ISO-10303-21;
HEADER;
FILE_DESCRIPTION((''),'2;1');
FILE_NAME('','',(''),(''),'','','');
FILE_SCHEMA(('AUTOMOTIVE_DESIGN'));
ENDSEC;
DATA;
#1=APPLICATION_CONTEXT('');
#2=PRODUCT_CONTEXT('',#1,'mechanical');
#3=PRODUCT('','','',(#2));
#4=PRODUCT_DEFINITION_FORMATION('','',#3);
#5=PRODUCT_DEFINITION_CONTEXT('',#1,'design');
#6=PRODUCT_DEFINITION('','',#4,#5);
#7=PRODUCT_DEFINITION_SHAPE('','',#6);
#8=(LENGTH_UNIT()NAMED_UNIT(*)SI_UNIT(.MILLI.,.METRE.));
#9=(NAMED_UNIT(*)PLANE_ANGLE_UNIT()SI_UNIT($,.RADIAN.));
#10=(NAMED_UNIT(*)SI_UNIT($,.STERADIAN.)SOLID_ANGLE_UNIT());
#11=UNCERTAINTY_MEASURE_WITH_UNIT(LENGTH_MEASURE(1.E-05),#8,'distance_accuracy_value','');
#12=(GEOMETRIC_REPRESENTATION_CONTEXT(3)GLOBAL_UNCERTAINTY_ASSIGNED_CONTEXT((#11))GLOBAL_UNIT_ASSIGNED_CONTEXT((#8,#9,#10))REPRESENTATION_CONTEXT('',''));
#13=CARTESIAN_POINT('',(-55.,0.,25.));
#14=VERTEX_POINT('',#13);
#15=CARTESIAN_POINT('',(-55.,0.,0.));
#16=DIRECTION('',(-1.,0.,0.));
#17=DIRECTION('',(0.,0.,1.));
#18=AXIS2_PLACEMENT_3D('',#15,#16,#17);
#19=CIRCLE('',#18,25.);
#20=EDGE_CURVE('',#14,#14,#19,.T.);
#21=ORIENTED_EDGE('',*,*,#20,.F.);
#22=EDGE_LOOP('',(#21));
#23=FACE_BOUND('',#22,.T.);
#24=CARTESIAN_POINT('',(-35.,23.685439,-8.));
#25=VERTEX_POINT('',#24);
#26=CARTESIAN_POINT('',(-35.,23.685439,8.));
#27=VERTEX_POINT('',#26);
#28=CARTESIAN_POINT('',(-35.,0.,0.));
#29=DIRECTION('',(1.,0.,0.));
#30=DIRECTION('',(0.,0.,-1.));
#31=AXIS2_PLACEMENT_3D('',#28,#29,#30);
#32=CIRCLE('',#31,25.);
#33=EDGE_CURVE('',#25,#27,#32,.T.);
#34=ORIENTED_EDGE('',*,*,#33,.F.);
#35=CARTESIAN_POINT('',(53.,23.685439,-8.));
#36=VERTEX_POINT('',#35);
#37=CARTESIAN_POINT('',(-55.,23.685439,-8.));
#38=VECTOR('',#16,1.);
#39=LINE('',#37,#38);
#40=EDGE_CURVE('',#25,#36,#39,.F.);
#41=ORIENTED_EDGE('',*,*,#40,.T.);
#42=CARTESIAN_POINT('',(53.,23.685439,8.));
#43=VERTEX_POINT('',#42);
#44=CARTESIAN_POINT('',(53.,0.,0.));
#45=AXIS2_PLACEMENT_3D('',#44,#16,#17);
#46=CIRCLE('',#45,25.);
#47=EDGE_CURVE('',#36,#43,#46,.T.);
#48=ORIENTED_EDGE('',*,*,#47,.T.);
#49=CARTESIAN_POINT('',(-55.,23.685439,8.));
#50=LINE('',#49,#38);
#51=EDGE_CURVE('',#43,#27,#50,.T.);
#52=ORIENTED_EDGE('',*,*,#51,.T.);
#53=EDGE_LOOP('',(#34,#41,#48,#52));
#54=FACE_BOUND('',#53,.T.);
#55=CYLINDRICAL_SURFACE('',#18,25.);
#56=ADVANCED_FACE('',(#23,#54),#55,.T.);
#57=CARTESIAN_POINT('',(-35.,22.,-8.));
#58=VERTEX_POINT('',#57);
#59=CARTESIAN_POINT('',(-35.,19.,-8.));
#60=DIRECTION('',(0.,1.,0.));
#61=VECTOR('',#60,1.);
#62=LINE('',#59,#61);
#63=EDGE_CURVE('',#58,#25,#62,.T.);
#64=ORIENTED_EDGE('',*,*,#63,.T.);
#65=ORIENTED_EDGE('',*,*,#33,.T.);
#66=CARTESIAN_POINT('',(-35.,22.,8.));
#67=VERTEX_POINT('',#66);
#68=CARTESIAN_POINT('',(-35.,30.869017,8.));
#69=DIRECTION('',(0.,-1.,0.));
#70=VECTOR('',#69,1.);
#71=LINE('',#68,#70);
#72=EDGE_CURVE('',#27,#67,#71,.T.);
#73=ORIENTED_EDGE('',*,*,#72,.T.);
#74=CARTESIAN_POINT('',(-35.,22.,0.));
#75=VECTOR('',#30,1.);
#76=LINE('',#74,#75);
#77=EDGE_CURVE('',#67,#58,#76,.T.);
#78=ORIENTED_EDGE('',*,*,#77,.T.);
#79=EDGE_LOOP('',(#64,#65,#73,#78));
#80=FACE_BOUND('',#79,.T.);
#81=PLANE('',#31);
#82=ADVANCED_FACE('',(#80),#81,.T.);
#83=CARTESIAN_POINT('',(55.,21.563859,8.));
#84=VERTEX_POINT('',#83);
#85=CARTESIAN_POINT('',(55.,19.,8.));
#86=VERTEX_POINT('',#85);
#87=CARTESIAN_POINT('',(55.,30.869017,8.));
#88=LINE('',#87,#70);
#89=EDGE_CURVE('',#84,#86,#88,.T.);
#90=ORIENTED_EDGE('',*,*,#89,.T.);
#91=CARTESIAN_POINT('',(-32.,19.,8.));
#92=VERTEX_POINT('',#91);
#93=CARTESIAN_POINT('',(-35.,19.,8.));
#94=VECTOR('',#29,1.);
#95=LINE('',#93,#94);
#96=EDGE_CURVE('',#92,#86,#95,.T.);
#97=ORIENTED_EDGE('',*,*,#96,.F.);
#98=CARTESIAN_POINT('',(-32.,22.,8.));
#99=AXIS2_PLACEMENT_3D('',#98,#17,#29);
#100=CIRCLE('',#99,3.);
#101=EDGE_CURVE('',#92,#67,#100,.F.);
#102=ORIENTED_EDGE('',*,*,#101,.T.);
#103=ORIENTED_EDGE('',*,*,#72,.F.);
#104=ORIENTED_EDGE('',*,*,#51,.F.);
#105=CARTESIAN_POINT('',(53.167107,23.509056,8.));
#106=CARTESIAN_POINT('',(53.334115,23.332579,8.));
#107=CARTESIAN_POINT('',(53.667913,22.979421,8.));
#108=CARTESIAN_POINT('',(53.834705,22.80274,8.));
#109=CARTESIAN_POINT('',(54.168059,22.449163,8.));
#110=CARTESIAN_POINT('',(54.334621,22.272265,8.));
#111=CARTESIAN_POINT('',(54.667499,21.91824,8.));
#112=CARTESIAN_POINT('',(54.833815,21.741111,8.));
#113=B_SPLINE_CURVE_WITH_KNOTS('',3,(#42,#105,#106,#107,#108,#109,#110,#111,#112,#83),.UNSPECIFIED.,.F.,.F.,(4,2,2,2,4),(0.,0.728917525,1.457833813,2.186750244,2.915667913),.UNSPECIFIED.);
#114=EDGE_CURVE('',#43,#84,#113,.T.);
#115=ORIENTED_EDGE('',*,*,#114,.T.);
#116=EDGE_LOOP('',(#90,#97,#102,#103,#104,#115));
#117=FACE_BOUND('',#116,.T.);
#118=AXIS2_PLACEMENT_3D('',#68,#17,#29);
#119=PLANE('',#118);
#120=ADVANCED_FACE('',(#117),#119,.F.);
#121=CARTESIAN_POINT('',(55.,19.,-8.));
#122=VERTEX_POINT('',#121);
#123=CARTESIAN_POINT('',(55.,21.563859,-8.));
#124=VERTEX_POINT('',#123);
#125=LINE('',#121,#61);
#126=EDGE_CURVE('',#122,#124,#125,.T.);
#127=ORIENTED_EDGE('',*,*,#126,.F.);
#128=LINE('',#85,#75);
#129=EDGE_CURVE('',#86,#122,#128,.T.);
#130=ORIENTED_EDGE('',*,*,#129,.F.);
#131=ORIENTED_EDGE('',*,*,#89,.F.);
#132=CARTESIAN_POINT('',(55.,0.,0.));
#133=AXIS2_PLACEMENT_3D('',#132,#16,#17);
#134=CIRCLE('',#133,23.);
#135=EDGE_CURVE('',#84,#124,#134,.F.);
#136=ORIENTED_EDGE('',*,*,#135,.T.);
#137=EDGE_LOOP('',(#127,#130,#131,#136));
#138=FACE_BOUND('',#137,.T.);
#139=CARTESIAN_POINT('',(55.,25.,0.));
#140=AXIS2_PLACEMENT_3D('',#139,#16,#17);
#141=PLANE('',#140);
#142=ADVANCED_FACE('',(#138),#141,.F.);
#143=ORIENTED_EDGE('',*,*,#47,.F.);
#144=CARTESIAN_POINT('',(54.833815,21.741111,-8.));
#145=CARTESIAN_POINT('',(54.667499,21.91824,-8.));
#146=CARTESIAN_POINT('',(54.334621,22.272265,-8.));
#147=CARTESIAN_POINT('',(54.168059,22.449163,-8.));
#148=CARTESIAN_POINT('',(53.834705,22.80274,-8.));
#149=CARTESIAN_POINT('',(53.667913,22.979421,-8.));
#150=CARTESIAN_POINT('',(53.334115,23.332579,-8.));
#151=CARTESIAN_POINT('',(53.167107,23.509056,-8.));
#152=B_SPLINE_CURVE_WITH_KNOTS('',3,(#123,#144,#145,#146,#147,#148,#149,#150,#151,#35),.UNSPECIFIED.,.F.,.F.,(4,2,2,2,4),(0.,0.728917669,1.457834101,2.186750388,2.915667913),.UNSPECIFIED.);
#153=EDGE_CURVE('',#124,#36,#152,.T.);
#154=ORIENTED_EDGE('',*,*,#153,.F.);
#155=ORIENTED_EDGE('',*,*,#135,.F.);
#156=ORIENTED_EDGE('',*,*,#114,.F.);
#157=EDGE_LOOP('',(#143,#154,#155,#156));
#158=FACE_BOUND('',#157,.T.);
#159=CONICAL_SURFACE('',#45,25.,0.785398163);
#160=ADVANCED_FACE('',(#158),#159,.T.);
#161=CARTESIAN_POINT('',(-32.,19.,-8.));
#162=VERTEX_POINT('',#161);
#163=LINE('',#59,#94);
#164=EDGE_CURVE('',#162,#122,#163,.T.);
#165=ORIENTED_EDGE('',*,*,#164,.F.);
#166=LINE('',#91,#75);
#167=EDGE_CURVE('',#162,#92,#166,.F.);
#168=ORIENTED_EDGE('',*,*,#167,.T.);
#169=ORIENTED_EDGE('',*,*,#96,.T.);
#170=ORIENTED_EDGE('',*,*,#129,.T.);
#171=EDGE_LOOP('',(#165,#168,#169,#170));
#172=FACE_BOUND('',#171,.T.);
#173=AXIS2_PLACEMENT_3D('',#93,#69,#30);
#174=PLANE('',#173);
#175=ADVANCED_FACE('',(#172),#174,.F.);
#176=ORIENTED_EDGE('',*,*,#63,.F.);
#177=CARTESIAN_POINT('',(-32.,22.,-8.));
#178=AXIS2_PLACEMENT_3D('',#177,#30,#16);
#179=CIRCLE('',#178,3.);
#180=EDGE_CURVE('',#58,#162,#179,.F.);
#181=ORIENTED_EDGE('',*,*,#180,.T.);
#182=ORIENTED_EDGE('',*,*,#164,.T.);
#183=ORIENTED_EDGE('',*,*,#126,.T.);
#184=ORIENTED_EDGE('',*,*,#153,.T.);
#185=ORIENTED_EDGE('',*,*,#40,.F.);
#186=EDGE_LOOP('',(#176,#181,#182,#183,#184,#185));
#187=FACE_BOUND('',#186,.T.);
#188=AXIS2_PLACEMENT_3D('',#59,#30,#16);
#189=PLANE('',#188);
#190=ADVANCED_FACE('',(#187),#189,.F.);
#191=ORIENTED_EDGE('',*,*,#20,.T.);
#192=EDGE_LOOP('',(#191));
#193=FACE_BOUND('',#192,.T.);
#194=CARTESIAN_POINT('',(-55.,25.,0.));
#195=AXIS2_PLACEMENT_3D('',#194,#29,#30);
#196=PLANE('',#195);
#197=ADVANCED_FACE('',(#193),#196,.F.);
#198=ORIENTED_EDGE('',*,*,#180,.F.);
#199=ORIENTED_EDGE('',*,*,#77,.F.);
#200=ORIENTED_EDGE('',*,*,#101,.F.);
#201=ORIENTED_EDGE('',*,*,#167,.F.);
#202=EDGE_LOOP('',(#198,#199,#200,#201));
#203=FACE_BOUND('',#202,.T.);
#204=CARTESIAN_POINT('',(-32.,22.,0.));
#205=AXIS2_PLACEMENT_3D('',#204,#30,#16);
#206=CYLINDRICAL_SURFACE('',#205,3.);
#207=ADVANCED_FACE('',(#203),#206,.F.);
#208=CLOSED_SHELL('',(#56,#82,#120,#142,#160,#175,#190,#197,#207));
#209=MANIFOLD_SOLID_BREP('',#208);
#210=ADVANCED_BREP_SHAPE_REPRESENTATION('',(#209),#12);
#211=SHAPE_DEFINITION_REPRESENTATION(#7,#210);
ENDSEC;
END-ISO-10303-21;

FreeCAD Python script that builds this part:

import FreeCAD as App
import Part
import Sketcher

V = App.Vector


def edges_at(feature, points):
    """Names of the edges that pass closest to the given points."""
    edges = feature.Shape.Edges
    near = lambda p: min(range(len(edges)), key=lambda i: edges[i].distToShape(Part.Vertex(*p))[0])
    return sorted({f"Edge{near(p) + 1}" for p in points})


def add_polygon(sketch, points):
    """Adds a closed chain of lines whose ends are joined by coincident constraints."""
    first, n = sketch.GeometryCount, len(points)
    for a, b in zip(points, points[1:] + points[:1]):
        sketch.addGeometry(Part.LineSegment(App.Vector(*a, 0), App.Vector(*b, 0)), False)
    for i in range(n):
        sketch.addConstraint(Sketcher.Constraint("Coincident", first + i, 2, first + (i + 1) % n, 1))

doc = App.newDocument("Part")
body = doc.addObject("PartDesign::Body", "Body")

# Sketch on XY plane
sketch1 = doc.addObject("Sketcher::SketchObject", "Sketch")
body.addObject(sketch1)
sketch1.AttachmentSupport = (doc.XY_Plane, [""])
sketch1.MapMode = "FlatFace"
add_polygon(sketch1, [(-55, 25), (-55, 0), (55, 0), (55, 25)])  # lines 0-3
sketch1.addConstraint([
    Sketcher.Constraint("Vertical", 0),
    Sketcher.Constraint("Horizontal", 1),
    Sketcher.Constraint("Vertical", 2),
    Sketcher.Constraint("Horizontal", 3),
    Sketcher.Constraint("Symmetric", 0, 2, 1, 2, -1, 1),
    Sketcher.Constraint("DistanceX", 1, 1, 1, 2, 110.0),
    Sketcher.Constraint("DistanceY", 0, 2, 0, 1, 25.0),
])
revolution = doc.addObject("PartDesign::Revolution", "Revolution")
body.addObject(revolution)
revolution.Profile = sketch1
revolution.ReferenceAxis = (sketch1, ["H_Axis"])
revolution.Angle = 360

# Sketch on YZ plane
sketch2 = doc.addObject("Sketcher::SketchObject", "Sketch001")
body.addObject(sketch2)
sketch2.AttachmentSupport = (doc.YZ_Plane, [""])
sketch2.MapMode = "FlatFace"
sketch2.AttachmentOffset = App.Placement(V(0, 0, 55), App.Rotation())
add_polygon(sketch2, [(31, 8), (19, 8), (19, -8), (31, -8)])  # lines 0-3
sketch2.addConstraint([
    Sketcher.Constraint("Horizontal", 0),
    Sketcher.Constraint("Vertical", 1),
    Sketcher.Constraint("Horizontal", 2),
    Sketcher.Constraint("Vertical", 3),
    Sketcher.Constraint("DistanceY", 1, 2, 1, 1, 16.0),
    Sketcher.Constraint("DistanceX", -1, 1, 0, 2, 19.0),
    Sketcher.Constraint("DistanceY", -1, 1, 0, 2, 8.0),
    Sketcher.Constraint("DistanceX", 0, 2, 0, 1, 11.869017),
])
pocket1 = doc.addObject("PartDesign::Pocket", "Pocket")
body.addObject(pocket1)
pocket1.Profile = sketch2
pocket1.Length = 90
doc.recompute()

chamfer = doc.addObject("PartDesign::Chamfer", "Chamfer")
body.addObject(chamfer)
chamfer.Base = (pocket1, edges_at(pocket1, [(55, -20.31, -14.577)]))
chamfer.Size = 2
doc.recompute()

fillet = doc.addObject("PartDesign::Fillet", "Fillet")
body.addObject(fillet)
fillet.Base = (chamfer, edges_at(chamfer, [(-35, 19, 0)]))
fillet.Radius = 3

doc.recompute()
